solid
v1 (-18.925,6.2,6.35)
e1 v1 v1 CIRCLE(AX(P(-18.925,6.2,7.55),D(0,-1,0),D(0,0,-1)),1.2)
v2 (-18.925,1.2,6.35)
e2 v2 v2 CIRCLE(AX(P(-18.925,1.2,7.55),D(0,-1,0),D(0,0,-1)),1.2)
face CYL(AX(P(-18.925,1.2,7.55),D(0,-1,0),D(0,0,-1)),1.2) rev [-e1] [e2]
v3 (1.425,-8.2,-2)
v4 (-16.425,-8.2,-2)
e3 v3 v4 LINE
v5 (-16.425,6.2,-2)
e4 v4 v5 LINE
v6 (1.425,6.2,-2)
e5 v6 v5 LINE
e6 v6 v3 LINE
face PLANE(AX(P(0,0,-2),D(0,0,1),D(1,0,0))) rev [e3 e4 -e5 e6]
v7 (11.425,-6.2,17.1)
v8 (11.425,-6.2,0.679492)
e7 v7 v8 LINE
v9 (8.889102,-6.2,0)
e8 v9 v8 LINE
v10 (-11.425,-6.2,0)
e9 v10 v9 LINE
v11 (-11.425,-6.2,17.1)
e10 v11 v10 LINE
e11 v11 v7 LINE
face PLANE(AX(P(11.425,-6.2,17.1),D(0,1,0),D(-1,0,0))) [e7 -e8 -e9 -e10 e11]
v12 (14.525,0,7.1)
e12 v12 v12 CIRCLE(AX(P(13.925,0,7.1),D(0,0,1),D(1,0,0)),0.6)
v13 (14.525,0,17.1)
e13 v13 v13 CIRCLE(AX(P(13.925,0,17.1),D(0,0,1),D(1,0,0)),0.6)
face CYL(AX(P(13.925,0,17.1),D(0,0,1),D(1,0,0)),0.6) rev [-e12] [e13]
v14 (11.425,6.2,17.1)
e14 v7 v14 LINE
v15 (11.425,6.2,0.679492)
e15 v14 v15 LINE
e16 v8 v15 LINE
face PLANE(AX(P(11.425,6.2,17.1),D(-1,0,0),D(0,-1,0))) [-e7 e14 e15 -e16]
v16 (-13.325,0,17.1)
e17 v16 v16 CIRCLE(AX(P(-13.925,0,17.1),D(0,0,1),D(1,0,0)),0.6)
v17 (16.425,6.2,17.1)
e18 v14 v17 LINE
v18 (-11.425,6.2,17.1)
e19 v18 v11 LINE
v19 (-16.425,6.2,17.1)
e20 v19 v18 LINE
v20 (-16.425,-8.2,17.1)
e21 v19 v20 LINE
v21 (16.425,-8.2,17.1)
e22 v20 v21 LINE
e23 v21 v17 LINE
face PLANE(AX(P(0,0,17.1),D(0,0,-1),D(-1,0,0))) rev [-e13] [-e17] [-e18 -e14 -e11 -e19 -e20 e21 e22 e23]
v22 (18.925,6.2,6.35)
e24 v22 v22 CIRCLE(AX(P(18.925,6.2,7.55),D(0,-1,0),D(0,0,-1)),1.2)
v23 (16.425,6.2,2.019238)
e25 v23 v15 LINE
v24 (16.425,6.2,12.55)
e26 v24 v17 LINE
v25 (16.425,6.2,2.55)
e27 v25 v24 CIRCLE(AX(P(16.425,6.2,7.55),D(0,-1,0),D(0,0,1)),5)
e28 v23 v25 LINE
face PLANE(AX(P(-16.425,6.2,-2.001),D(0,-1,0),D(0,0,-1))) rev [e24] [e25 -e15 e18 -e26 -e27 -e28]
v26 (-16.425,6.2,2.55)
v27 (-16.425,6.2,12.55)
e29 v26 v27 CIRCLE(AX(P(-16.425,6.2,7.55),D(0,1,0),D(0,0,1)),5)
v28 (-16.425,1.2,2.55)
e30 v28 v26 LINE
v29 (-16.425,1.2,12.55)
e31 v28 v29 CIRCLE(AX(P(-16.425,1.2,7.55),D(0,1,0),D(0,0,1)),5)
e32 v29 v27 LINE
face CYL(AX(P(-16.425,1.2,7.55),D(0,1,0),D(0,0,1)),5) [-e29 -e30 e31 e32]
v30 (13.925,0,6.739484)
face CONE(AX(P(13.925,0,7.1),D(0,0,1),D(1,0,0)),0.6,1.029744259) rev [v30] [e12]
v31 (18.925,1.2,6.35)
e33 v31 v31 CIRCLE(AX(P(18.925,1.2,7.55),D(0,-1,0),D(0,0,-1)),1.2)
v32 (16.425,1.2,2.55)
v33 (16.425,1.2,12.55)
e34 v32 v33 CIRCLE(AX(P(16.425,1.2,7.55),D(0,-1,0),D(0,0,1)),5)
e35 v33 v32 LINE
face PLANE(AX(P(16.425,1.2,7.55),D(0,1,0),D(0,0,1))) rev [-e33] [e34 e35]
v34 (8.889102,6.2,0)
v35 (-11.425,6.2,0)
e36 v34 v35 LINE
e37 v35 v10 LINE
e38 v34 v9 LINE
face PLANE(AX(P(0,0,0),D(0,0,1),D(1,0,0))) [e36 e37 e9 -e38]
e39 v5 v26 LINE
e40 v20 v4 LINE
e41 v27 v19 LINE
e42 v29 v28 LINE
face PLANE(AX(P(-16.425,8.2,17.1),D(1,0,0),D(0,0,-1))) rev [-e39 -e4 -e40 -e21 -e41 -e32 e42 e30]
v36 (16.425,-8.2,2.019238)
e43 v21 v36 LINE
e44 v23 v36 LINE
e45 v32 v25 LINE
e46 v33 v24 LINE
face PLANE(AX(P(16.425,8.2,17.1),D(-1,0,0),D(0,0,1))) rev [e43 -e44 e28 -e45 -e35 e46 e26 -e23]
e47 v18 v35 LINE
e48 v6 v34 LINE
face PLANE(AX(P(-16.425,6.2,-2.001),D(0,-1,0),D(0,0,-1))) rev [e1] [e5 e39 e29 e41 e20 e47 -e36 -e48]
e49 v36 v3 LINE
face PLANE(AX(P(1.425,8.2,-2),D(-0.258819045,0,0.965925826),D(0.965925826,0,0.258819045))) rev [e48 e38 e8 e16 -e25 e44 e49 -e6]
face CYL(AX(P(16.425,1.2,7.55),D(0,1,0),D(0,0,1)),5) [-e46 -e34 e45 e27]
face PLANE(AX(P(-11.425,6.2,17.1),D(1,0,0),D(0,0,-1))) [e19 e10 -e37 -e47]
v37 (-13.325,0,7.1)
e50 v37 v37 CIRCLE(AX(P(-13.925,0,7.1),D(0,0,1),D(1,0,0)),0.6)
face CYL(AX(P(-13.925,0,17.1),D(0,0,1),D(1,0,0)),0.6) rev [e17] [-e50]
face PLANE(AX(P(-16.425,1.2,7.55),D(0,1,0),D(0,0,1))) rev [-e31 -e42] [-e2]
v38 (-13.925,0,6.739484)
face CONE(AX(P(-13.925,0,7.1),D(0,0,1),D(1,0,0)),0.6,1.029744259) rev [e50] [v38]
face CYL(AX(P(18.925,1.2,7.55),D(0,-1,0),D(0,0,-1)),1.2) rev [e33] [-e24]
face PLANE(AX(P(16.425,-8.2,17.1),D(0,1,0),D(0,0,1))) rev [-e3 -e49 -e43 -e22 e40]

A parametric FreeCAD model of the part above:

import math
import FreeCAD as App
import Part
import Sketcher

V = App.Vector
Q = App.Units.Quantity

doc = App.newDocument("Part")
body = doc.addObject("PartDesign::Body", "Body")

sketch1 = body.newObject("Sketcher::SketchObject", "Sketch")
sketch1.AttachmentSupport = (doc.getObject("XY_Plane"), [""])
sketch1.MapMode = "FlatFace"
sketch1.addGeometry(Part.LineSegment(V(-16, 8, 0), V(-16, -8, 0)), False)
sketch1.addGeometry(Part.LineSegment(V(-16, -8, 0), V(16, -8, 0)), False)
sketch1.addGeometry(Part.LineSegment(V(16, -8, 0), V(16, 8, 0)), False)
sketch1.addGeometry(Part.LineSegment(V(16, 8, 0), V(-16, 8, 0)), False)
sketch1.addGeometry(Part.LineSegment(V(11, -6, 0), V(-11, -6, 0)), False)
sketch1.addGeometry(Part.LineSegment(V(-11, -6, 0), V(-11, 6, 0)), False)
sketch1.addGeometry(Part.LineSegment(V(-11, 6, 0), V(11, 6, 0)), False)
sketch1.addGeometry(Part.LineSegment(V(11, 6, 0), V(11, -6, 0)), False)
sketch1.addConstraint(Sketcher.Constraint("Coincident", 0, 2, 1, 1))
sketch1.addConstraint(Sketcher.Constraint("Coincident", 1, 2, 2, 1))
sketch1.addConstraint(Sketcher.Constraint("Coincident", 2, 2, 3, 1))
sketch1.addConstraint(Sketcher.Constraint("Coincident", 3, 2, 0, 1))
sketch1.addConstraint(Sketcher.Constraint("Coincident", 4, 2, 5, 1))
sketch1.addConstraint(Sketcher.Constraint("Coincident", 5, 2, 6, 1))
sketch1.addConstraint(Sketcher.Constraint("Coincident", 6, 2, 7, 1))
sketch1.addConstraint(Sketcher.Constraint("Coincident", 7, 2, 4, 1))
sketch1.addConstraint(Sketcher.Constraint("Vertical", 0))
sketch1.addConstraint(Sketcher.Constraint("Horizontal", 1))
sketch1.addConstraint(Sketcher.Constraint("Vertical", 2))
sketch1.addConstraint(Sketcher.Constraint("Horizontal", 3))
sketch1.addConstraint(Sketcher.Constraint("Horizontal", 4))
sketch1.addConstraint(Sketcher.Constraint("Vertical", 5))
sketch1.addConstraint(Sketcher.Constraint("Horizontal", 6))
sketch1.addConstraint(Sketcher.Constraint("Vertical", 7))
sketch1.addConstraint(Sketcher.Constraint("Symmetric", 0, 2, 2, 2, -1, 1))
sketch1.addConstraint(Sketcher.Constraint("Symmetric", 4, 2, 6, 2, -1, 1))
sketch1.addConstraint(Sketcher.Constraint("DistanceY", 0, 2, 0, 1, 16.4))
sketch1.addConstraint(Sketcher.Constraint("DistanceY", 5, 1, 5, 2, 12.4))
sketch1.addConstraint(Sketcher.Constraint("DistanceX", 0, 2, 4, 2, 5.0))
sketch1.addConstraint(Sketcher.Constraint("DistanceX", 1, 1, 1, 2, 32.85))
pad1 = body.newObject("PartDesign::Pad", "Pad")
pad1.Profile = sketch1
pad1.Length = 17.1

sketch2 = body.newObject("Sketcher::SketchObject", "Sketch001")
sketch2.AttachmentSupport = (doc.getObject("XY_Plane"), [""])
sketch2.MapMode = "FlatFace"
sketch2.addGeometry(Part.LineSegment(V(16, 8, 0), V(16, -8, 0)), False)
sketch2.addGeometry(Part.LineSegment(V(16, -8, 0), V(-16, -8, 0)), False)
sketch2.addGeometry(Part.LineSegment(V(-16, -8, 0), V(-16, 8, 0)), False)
sketch2.addGeometry(Part.LineSegment(V(-16, 8, 0), V(16, 8, 0)), False)
sketch2.addConstraint(Sketcher.Constraint("Coincident", 0, 2, 1, 1))
sketch2.addConstraint(Sketcher.Constraint("Coincident", 1, 2, 2, 1))
sketch2.addConstraint(Sketcher.Constraint("Coincident", 2, 2, 3, 1))
sketch2.addConstraint(Sketcher.Constraint("Coincident", 3, 2, 0, 1))
sketch2.addConstraint(Sketcher.Constraint("Vertical", 0))
sketch2.addConstraint(Sketcher.Constraint("Horizontal", 1))
sketch2.addConstraint(Sketcher.Constraint("Vertical", 2))
sketch2.addConstraint(Sketcher.Constraint("Horizontal", 3))
sketch2.addConstraint(Sketcher.Constraint("Symmetric", 0, 2, 2, 2, -1, 1))
sketch2.addConstraint(Sketcher.Constraint("DistanceY", 0, 2, 0, 1, 16.4))
sketch2.addConstraint(Sketcher.Constraint("DistanceX", 1, 2, 1, 1, 32.85))
pad2 = body.newObject("PartDesign::Pad", "Pad001")
pad2.Profile = sketch2
pad2.Length = 2
pad2.Reversed = True

sketch3 = body.newObject("Sketcher::SketchObject", "Sketch002")
sketch3.AttachmentSupport = (doc.getObject("YZ_Plane"), [""])
sketch3.MapMode = "FlatFace"
sketch3.AttachmentOffset = App.Placement(V(0, 0, -13.925), App.Rotation())
sketch3.addGeometry(Part.LineSegment(V(0, 6.7, 0), V(0, 17.1, 0)), False)
sketch3.addGeometry(Part.LineSegment(V(0, 17.1, 0), V(-0.6, 17.1, 0)), False)
sketch3.addGeometry(Part.LineSegment(V(-0.6, 17.1, 0), V(-0.6, 7.1, 0)), False)
sketch3.addGeometry(Part.LineSegment(V(-0.6, 7.1, 0), V(0, 6.7, 0)), False)
sketch3.addConstraint(Sketcher.Constraint("Coincident", 0, 2, 1, 1))
sketch3.addConstraint(Sketcher.Constraint("Coincident", 1, 2, 2, 1))
sketch3.addConstraint(Sketcher.Constraint("Coincident", 2, 2, 3, 1))
sketch3.addConstraint(Sketcher.Constraint("Coincident", 3, 2, 0, 1))
sketch3.addConstraint(Sketcher.Constraint("Vertical", 0))
sketch3.addConstraint(Sketcher.Constraint("Horizontal", 1))
sketch3.addConstraint(Sketcher.Constraint("Vertical", 2))
sketch3.addConstraint(Sketcher.Constraint("PointOnObject", 0, 2, -2))
sketch3.addConstraint(Sketcher.Constraint("DistanceY", 2, 2, 2, 1, 10.0))
sketch3.addConstraint(Sketcher.Constraint("Angle", 3, Q("-31 deg")))
sketch3.addConstraint(Sketcher.Constraint("DistanceX", 1, 2, 1, 1, 0.6))
sketch3.addConstraint(Sketcher.Constraint("DistanceY", -1, 1, 0, 2, 17.1))
groove = body.newObject("PartDesign::Groove", "Groove")
groove.Profile = sketch3
groove.ReferenceAxis = (sketch3, ["V_Axis"])
groove.Angle = 360
doc.recompute()

mirrored = body.newObject("PartDesign::Mirrored", "Mirrored")
mirrored.Originals = [groove]
mirrored.MirrorPlane = (doc.getObject("YZ_Plane"), [""])
body.Tip = mirrored

sketch4 = body.newObject("Sketcher::SketchObject", "Sketch003")
sketch4.AttachmentSupport = (doc.getObject("XZ_Plane"), [""])
sketch4.MapMode = "FlatFace"
sketch4.AttachmentOffset = App.Placement(V(0, 0, 8.2), App.Rotation())
sketch4.addGeometry(Part.LineSegment(V(1.4, -2, 0), V(16.4, -2, 0)), False)
sketch4.addGeometry(Part.LineSegment(V(16.4, -2, 0), V(16.4, 2, 0)), False)
sketch4.addGeometry(Part.LineSegment(V(16.4, 2, 0), V(1.4, -2, 0)), False)
sketch4.addConstraint(Sketcher.Constraint("Coincident", 0, 2, 1, 1))
sketch4.addConstraint(Sketcher.Constraint("Coincident", 1, 2, 2, 1))
sketch4.addConstraint(Sketcher.Constraint("Coincident", 2, 2, 0, 1))
sketch4.addConstraint(Sketcher.Constraint("Horizontal", 0))
sketch4.addConstraint(Sketcher.Constraint("Vertical", 1))
sketch4.addConstraint(Sketcher.Constraint("DistanceX", 0, 1, 0, 2, 15.0))
sketch4.addConstraint(Sketcher.Constraint("Angle", 2, Q("-165 deg")))
sketch4.addConstraint(Sketcher.Constraint("DistanceY", 0, 2, -1, 1, 2.0))
sketch4.addConstraint(Sketcher.Constraint("DistanceX", -1, 1, 0, 2, 16.425))
pocket1 = body.newObject("PartDesign::Pocket", "Pocket")
pocket1.Profile = sketch4
pocket1.Type = "ThroughAll"

sketch5 = body.newObject("Sketcher::SketchObject", "Sketch004")
sketch5.AttachmentSupport = (doc.getObject("XY_Plane"), [""])
sketch5.MapMode = "FlatFace"
sketch5.AttachmentOffset = App.Placement(V(0, 0, 17.1), App.Rotation())
sketch5.addGeometry(Part.LineSegment(V(-16.4, 8.2, 0), V(-16.4, 6.2, 0)), False)
sketch5.addGeometry(Part.LineSegment(V(-16.4, 6.2, 0), V(16.4, 6.2, 0)), False)
sketch5.addGeometry(Part.LineSegment(V(16.4, 6.2, 0), V(16.4, 8.2, 0)), False)
sketch5.addGeometry(Part.LineSegment(V(16.4, 8.2, 0), V(-16.4, 8.2, 0)), False)
sketch5.addConstraint(Sketcher.Constraint("Coincident", 0, 2, 1, 1))
sketch5.addConstraint(Sketcher.Constraint("Coincident", 1, 2, 2, 1))
sketch5.addConstraint(Sketcher.Constraint("Coincident", 2, 2, 3, 1))
sketch5.addConstraint(Sketcher.Constraint("Coincident", 3, 2, 0, 1))
sketch5.addConstraint(Sketcher.Constraint("Vertical", 0))
sketch5.addConstraint(Sketcher.Constraint("Horizontal", 1))
sketch5.addConstraint(Sketcher.Constraint("Vertical", 2))
sketch5.addConstraint(Sketcher.Constraint("Horizontal", 3))
sketch5.addConstraint(Sketcher.Constraint("DistanceY", 0, 2, 0, 1, 2.0))
sketch5.addConstraint(Sketcher.Constraint("DistanceX", 1, 1, 1, 2, 32.85))
sketch5.addConstraint(Sketcher.Constraint("DistanceY", -1, 1, 0, 2, 6.2))
sketch5.addConstraint(Sketcher.Constraint("DistanceX", 0, 2, -1, 1, 16.425))
pocket2 = body.newObject("PartDesign::Pocket", "Pocket001")
pocket2.Profile = sketch5
pocket2.Type = "UpToFirst"

sketch6 = body.newObject("Sketcher::SketchObject", "Sketch005")
sketch6.AttachmentSupport = (doc.getObject("XZ_Plane"), [""])
sketch6.MapMode = "FlatFace"
sketch6.AttachmentOffset = App.Placement(V(0, 0, -6.2), App.Rotation())
sketch6.addGeometry(Part.LineSegment(V(-16, 13, 0), V(-16, 3, 0)), False)
sketch6.addGeometry(Part.ArcOfCircle(Part.Circle(V(-16, 8, 0), V(0, 0, 1), 5), math.radians(90), math.radians(270)), False)
sketch6.addConstraint(Sketcher.Constraint("Coincident", 0, 1, 1, 1))
sketch6.addConstraint(Sketcher.Constraint("Coincident", 1, 2, 0, 2))
sketch6.addConstraint(Sketcher.Constraint("Vertical", 0))
sketch6.addConstraint(Sketcher.Constraint("Vertical", 1, 3, 0, 1))
sketch6.addConstraint(Sketcher.Constraint("Radius", 1, 5.0))
sketch6.addConstraint(Sketcher.Constraint("DistanceY", -1, 1, 1, 3, 7.55))
sketch6.addConstraint(Sketcher.Constraint("DistanceX", 1, 3, -1, 1, 16.425))
pad3 = body.newObject("PartDesign::Pad", "Pad002")
pad3.Profile = sketch6
pad3.Length = 5

sketch7 = body.newObject("Sketcher::SketchObject", "Sketch006")
sketch7.AttachmentSupport = (doc.getObject("YZ_Plane"), [""])
sketch7.MapMode = "FlatFace"
sketch7.AttachmentOffset = App.Placement(V(0, 0, -18.925), App.Rotation())
sketch7.addGeometry(Part.LineSegment(V(11.9, 7.5, 0), V(1.2, 7.5, 0)), False)
sketch7.addGeometry(Part.LineSegment(V(1.2, 7.5, 0), V(1.2, 6.3, 0)), False)
sketch7.addGeometry(Part.LineSegment(V(1.2, 6.3, 0), V(11.2, 6.3, 0)), False)
sketch7.addGeometry(Part.LineSegment(V(11.2, 6.3, 0), V(11.9, 7.5, 0)), False)
sketch7.addGeometry(Part.LineSegment(V(1.2, 7.5, 0), V(11.9, 7.5, 0)), True)
sketch7.addConstraint(Sketcher.Constraint("Coincident", 0, 2, 1, 1))
sketch7.addConstraint(Sketcher.Constraint("Coincident", 1, 2, 2, 1))
sketch7.addConstraint(Sketcher.Constraint("Coincident", 2, 2, 3, 1))
sketch7.addConstraint(Sketcher.Constraint("Coincident", 3, 2, 0, 1))
sketch7.addConstraint(Sketcher.Constraint("Horizontal", 0))
sketch7.addConstraint(Sketcher.Constraint("Vertical", 1))
sketch7.addConstraint(Sketcher.Constraint("Horizontal", 2))
sketch7.addConstraint(Sketcher.Constraint("Horizontal", 4))
sketch7.addConstraint(Sketcher.Constraint("Coincident", 4, 1, 0, 2))
sketch7.addConstraint(Sketcher.Constraint("Equal", 0, 4))
sketch7.addConstraint(Sketcher.Constraint("DistanceX", 2, 1, 2, 2, 10.0))
sketch7.addConstraint(Sketcher.Constraint("Angle", 3, Q("59 deg")))
sketch7.addConstraint(Sketcher.Constraint("DistanceY", 1, 2, 1, 1, 1.2))
sketch7.addConstraint(Sketcher.Constraint("DistanceX", -1, 1, 0, 2, 1.2))
sketch7.addConstraint(Sketcher.Constraint("DistanceY", -1, 1, 0, 2, 7.55))
groove2 = body.newObject("PartDesign::Groove", "Groove001")
groove2.Profile = sketch7
groove2.ReferenceAxis = (sketch7, ["Axis0"])
groove2.Angle = 360
doc.recompute()

mirrored2 = body.newObject("PartDesign::Mirrored", "Mirrored001")
mirrored2.Originals = [pad3, groove2]
mirrored2.MirrorPlane = (doc.getObject("YZ_Plane"), [""])
body.Tip = mirrored2

doc.recompute()
